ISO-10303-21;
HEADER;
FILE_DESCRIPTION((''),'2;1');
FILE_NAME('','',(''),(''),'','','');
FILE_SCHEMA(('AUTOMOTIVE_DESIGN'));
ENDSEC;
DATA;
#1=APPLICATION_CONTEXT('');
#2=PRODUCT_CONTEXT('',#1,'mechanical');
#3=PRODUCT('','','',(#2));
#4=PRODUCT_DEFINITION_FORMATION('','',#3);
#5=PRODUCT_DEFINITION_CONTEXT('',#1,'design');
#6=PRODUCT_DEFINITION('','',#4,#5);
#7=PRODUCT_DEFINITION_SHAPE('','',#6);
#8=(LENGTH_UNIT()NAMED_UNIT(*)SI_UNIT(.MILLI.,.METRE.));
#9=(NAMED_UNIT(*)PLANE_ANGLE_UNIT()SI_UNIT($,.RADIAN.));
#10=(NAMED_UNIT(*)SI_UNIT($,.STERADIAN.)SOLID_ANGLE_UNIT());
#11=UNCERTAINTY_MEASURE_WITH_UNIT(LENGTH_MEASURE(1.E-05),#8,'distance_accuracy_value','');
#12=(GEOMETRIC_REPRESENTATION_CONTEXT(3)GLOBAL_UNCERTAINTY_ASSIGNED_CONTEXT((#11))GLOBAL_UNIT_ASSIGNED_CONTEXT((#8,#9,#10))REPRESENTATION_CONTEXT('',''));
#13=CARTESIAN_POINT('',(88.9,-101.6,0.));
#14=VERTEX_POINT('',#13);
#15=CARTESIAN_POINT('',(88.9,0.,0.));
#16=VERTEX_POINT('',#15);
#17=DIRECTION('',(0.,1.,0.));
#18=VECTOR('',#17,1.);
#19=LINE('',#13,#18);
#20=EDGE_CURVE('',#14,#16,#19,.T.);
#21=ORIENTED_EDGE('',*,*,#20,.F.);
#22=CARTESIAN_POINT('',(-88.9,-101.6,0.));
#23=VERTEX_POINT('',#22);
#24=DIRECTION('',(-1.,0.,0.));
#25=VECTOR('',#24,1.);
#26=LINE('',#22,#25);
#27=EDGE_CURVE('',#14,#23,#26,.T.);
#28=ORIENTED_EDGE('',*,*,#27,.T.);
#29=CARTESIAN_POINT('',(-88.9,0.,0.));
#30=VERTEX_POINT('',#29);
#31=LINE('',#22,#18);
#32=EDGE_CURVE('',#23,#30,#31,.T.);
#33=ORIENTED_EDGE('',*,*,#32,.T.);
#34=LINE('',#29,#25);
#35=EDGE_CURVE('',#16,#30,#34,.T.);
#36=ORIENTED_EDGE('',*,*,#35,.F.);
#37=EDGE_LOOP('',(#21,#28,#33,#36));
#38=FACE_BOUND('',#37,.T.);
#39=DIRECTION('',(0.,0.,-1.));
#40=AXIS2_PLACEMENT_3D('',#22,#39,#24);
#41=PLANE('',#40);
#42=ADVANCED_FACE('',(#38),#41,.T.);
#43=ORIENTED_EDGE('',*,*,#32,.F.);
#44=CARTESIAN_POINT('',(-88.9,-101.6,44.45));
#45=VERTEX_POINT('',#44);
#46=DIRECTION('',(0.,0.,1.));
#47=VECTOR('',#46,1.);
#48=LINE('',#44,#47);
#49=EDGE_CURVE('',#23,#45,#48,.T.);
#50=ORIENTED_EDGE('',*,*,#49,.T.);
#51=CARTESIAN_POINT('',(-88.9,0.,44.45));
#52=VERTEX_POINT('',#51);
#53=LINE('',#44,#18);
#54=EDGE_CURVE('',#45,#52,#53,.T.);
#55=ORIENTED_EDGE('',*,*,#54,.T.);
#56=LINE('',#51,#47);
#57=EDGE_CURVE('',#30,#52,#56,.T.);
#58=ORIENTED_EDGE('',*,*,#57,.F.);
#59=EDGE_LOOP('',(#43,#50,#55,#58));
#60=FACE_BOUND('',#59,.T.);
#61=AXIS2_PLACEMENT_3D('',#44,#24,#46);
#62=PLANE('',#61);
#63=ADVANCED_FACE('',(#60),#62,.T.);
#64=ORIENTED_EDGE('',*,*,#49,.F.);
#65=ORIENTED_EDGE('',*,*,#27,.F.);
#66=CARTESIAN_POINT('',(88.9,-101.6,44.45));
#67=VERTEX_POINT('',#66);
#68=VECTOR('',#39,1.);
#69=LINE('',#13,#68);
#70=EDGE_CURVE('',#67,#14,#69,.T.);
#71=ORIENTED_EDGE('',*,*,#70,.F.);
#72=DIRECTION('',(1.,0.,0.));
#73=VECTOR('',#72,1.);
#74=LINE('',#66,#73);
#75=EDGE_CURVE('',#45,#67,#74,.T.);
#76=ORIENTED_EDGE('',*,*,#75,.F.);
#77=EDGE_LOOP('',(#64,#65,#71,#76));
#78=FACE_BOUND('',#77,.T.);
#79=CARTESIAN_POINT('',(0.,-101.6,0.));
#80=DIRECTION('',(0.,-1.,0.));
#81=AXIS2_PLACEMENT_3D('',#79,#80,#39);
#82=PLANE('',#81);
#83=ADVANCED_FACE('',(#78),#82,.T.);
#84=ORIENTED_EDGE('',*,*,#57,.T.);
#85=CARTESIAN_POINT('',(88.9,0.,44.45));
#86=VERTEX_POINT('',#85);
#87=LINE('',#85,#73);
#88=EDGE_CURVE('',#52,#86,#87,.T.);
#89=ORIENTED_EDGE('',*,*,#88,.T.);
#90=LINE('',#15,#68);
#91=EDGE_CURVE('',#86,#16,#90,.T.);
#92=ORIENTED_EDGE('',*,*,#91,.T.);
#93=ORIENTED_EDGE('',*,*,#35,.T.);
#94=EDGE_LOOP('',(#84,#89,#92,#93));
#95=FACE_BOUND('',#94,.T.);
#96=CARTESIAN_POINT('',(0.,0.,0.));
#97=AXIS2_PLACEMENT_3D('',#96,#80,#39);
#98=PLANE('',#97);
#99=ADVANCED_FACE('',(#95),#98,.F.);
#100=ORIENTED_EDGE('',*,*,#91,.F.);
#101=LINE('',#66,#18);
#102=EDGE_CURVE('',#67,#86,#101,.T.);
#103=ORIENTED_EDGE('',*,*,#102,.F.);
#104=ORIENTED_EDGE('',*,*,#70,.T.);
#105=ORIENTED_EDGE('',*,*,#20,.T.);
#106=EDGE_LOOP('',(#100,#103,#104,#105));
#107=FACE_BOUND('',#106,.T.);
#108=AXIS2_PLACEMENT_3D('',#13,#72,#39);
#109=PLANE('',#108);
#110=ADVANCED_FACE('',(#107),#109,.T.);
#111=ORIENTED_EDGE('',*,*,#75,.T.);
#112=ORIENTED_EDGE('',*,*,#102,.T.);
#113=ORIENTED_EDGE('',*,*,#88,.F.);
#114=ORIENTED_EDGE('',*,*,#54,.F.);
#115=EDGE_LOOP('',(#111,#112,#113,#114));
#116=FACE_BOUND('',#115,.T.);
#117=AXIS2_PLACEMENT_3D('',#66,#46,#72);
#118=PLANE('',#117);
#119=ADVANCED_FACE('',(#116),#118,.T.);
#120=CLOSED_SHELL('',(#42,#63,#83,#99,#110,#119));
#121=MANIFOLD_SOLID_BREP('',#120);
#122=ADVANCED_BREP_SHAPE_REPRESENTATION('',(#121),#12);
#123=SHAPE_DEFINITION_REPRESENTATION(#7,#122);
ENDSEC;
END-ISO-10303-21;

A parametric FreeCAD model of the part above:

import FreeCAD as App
import Part
import Sketcher

V = App.Vector
Q = App.Units.Quantity

doc = App.newDocument("Part")
params = doc.addObject("Spreadsheet::Sheet", "Params")
for row, (alias, value) in enumerate([
    ("sketch1_width", "7 in"),
    ("sketch1_height", "1.75 in"),
    ("pad1_length", "4 in"),
], start=1):
    params.set(f"A{row}", alias)
    params.set(f"B{row}", "=" + value)
    params.setAlias(f"B{row}", alias)

body = doc.addObject("PartDesign::Body", "Body")

# Sketch on XZ plane
sketch1 = doc.addObject("Sketcher::SketchObject", "Sketch")
body.addObject(sketch1)
sketch1.AttachmentSupport = (doc.XZ_Plane, [""])
sketch1.MapMode = "FlatFace"
sketch1.addGeometry([
    Part.LineSegment(V(-88.9, 0, 0), V(-88.9, 44.45, 0)),
    Part.LineSegment(V(-88.9, 44.45, 0), V(88.9, 44.45, 0)),
    Part.LineSegment(V(88.9, 44.45, 0), V(88.9, 0, 0)),
    Part.LineSegment(V(88.9, 0, 0), V(-88.9, 0, 0)),
], False)
sketch1.addConstraint([
    Sketcher.Constraint("Coincident", 0, 2, 1, 1),
    Sketcher.Constraint("Coincident", 1, 2, 2, 1),
    Sketcher.Constraint("Coincident", 2, 2, 3, 1),
    Sketcher.Constraint("Coincident", 3, 2, 0, 1),
    Sketcher.Constraint("Vertical", 0),
    Sketcher.Constraint("Horizontal", 1),
    Sketcher.Constraint("Vertical", 2),
    Sketcher.Constraint("Horizontal", 3),
    Sketcher.Constraint("Symmetric", 2, 2, 3, 2, -1, 1),
    Sketcher.Constraint("DistanceX", 1, 1, 1, 2, Q("7 in")),
    Sketcher.Constraint("DistanceY", 0, 1, 0, 2, Q("1.75 in")),
])
sketch1.setExpression("Constraints[9]", "Params.sketch1_width")
sketch1.setExpression("Constraints[10]", "Params.sketch1_height")
pad1 = doc.addObject("PartDesign::Pad", "Pad")
body.addObject(pad1)
pad1.Profile = sketch1
pad1.setExpression("Length", "Params.pad1_length")

doc.recompute()
